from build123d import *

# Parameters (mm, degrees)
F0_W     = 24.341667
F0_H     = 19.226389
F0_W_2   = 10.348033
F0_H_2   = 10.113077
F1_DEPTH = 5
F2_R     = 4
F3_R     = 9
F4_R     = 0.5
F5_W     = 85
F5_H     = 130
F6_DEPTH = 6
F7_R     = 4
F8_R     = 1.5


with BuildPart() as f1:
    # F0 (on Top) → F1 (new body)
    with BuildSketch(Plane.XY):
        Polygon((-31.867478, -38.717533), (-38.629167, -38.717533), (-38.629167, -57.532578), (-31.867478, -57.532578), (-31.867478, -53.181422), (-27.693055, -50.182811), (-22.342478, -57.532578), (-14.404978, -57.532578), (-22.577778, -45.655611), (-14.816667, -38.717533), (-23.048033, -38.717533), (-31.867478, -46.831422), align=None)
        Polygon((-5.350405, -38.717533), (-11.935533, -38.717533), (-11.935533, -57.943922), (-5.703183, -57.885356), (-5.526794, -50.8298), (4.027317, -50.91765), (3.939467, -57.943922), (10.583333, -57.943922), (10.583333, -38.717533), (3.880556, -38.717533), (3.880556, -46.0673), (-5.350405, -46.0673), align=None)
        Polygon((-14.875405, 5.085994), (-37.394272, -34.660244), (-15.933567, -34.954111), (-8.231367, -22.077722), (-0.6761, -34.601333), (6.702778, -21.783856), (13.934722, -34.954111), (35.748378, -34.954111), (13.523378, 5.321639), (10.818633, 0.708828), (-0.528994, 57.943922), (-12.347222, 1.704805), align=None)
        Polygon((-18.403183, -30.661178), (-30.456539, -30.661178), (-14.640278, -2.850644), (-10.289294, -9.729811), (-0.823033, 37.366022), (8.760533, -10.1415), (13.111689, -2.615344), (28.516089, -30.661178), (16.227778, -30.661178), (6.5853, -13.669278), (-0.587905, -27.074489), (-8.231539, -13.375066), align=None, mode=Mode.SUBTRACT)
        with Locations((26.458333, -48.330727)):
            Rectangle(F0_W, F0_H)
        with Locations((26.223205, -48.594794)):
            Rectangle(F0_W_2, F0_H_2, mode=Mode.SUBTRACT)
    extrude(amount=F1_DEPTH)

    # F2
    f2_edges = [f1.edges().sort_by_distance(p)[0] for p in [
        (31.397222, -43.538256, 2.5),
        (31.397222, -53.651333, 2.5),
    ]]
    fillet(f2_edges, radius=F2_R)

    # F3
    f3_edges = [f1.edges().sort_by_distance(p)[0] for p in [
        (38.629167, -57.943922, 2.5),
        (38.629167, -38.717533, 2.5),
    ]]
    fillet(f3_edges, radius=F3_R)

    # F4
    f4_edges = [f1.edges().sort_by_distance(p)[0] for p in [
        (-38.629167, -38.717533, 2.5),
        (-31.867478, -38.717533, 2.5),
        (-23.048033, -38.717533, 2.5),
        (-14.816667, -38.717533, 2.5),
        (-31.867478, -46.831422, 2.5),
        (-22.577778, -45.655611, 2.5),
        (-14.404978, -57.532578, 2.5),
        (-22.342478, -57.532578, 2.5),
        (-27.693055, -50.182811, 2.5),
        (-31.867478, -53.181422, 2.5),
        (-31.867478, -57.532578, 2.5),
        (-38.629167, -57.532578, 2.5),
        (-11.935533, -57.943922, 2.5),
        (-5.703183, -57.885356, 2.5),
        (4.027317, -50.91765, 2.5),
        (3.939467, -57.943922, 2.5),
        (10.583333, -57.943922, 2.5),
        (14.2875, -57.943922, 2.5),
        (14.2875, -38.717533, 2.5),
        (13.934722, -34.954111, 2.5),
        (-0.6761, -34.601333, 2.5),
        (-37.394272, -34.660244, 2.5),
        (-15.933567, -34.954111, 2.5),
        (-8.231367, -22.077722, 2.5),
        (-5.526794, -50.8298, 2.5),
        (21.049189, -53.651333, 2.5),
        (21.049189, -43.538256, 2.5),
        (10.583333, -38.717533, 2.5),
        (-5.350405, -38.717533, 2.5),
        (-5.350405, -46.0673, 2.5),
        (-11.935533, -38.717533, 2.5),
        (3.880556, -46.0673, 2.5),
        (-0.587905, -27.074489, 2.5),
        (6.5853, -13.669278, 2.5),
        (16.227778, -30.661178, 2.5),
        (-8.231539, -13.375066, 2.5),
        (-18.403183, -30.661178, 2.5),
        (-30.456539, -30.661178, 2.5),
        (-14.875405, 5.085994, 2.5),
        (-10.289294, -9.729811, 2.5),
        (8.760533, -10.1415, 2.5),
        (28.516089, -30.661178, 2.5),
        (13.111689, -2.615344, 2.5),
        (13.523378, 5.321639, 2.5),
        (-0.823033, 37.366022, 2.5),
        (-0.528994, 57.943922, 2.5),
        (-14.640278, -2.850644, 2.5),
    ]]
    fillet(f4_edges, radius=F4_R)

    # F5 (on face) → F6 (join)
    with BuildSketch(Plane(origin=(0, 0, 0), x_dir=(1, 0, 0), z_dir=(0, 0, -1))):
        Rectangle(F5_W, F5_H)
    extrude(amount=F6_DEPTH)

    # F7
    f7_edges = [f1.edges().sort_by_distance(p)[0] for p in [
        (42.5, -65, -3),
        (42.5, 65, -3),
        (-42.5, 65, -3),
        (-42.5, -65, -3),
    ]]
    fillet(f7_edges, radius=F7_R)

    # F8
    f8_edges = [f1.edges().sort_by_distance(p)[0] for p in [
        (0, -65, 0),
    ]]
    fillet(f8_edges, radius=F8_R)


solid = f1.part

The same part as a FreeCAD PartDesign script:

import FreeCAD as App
import Part
import Sketcher
from FreeCAD import Vector
Q = App.Units.Quantity


def edges_at(feature, points):
    """Names of the edges that pass closest to the given points."""
    edges = feature.Shape.Edges
    near = lambda p: min(range(len(edges)), key=lambda i: edges[i].distToShape(Part.Vertex(*p))[0])
    return sorted({f"Edge{near(p) + 1}" for p in points})


def add_polygon(sketch, points):
    """Adds a closed chain of lines whose ends are joined by coincident constraints."""
    first, n = sketch.GeometryCount, len(points)
    for a, b in zip(points, points[1:] + points[:1]):
        sketch.addGeometry(Part.LineSegment(App.Vector(*a, 0), App.Vector(*b, 0)), False)
    for i in range(n):
        sketch.addConstraint(Sketcher.Constraint("Coincident", first + i, 2, first + (i + 1) % n, 1))

doc = App.newDocument("Part")
body = doc.addObject("PartDesign::Body", "Body")
body.AllowCompound = True

sketch1 = doc.addObject("Sketcher::SketchObject", "Sketch")
body.addObject(sketch1)
sketch1.AttachmentSupport = (doc.XY_Plane, [""])
sketch1.MapMode = "FlatFace"
add_polygon(sketch1, [(-31.9, -38.7), (-38.6, -38.7), (-38.6, -57.5), (-31.9, -57.5), (-31.9, -53.2), (-27.7, -50.2), (-22.3, -57.5), (-14.4, -57.5), (-22.6, -45.7), (-14.8, -38.7), (-23, -38.7), (-31.9, -46.8)])
add_polygon(sketch1, [(-5.4, -38.7), (-11.9, -38.7), (-11.9, -57.9), (-5.7, -57.9), (-5.5, -50.8), (4, -50.9), (3.9, -57.9), (10.6, -57.9), (10.6, -38.7), (3.9, -38.7), (3.9, -46.1), (-5.4, -46.1)])
add_polygon(sketch1, [(-14.9, 5.1), (-37.4, -34.7), (-15.9, -35), (-8.2, -22.1), (-0.7, -34.6), (6.7, -21.8), (13.9, -35), (35.7, -35), (13.5, 5.3), (10.8, 0.7), (-0.5, 57.9), (-12.3, 1.7)])
add_polygon(sketch1, [(-8.2, -13.4), (-18.4, -30.7), (-30.5, -30.7), (-14.6, -2.9), (-10.3, -9.7), (-0.8, 37.4), (8.8, -10.1), (13.1, -2.6), (28.5, -30.7), (16.2, -30.7), (6.6, -13.7), (-0.6, -27.1)])
add_polygon(sketch1, [(14.3, -38.7), (14.3, -57.9), (38.6, -57.9), (38.6, -38.7)])
add_polygon(sketch1, [(31.4, -53.7), (21, -53.7), (21, -43.5), (31.4, -43.5)])
sketch1.addConstraint([
    Sketcher.Constraint("Horizontal", 0),
    Sketcher.Constraint("Vertical", 1),
    Sketcher.Constraint("Horizontal", 2),
    Sketcher.Constraint("Vertical", 3),
    Sketcher.Constraint("Horizontal", 6),
    Sketcher.Constraint("Horizontal", 9),
    Sketcher.Constraint("Vertical", 11),
    Sketcher.Constraint("Horizontal", 12),
    Sketcher.Constraint("Vertical", 13),
    Sketcher.Constraint("Horizontal", 18),
    Sketcher.Constraint("Vertical", 19),
    Sketcher.Constraint("Horizontal", 20),
    Sketcher.Constraint("Vertical", 21),
    Sketcher.Constraint("Horizontal", 22),
    Sketcher.Constraint("Vertical", 23),
    Sketcher.Constraint("Horizontal", 30),
    Sketcher.Constraint("Horizontal", 37),
    Sketcher.Constraint("Horizontal", 44),
    Sketcher.Constraint("Vertical", 48),
    Sketcher.Constraint("Horizontal", 49),
    Sketcher.Constraint("Vertical", 50),
    Sketcher.Constraint("Horizontal", 51),
    Sketcher.Constraint("Horizontal", 52),
    Sketcher.Constraint("Vertical", 53),
    Sketcher.Constraint("Horizontal", 54),
    Sketcher.Constraint("Vertical", 55),
    Sketcher.Constraint("Symmetric", 0, 2, 50, 2, -2),
    Sketcher.Constraint("Horizontal", 2, 2, 5, 2),
    Sketcher.Constraint("Horizontal", 0, 2, 8, 2),
    Sketcher.Constraint("Horizontal", 11, 2, 12, 2),
    Sketcher.Constraint("Horizontal", 13, 2, 17, 2),
    Sketcher.Constraint("Horizontal", 12, 2, 19, 2),
    Sketcher.Constraint("Horizontal", 25, 2, 29, 2),
    Sketcher.Constraint("Horizontal", 37, 2, 43, 2),
    Sketcher.Constraint("Horizontal", 18, 2, 48, 2),
    Sketcher.Constraint("Vertical", 3, 2, 10, 2),
    Sketcher.Constraint("DistanceY", 3, 2, 10, 2, Q("6.35 mm")),
    Sketcher.Constraint("DistanceX", 26, 2, 32, 2, Q("19.05 mm")),
    Sketcher.Constraint("DistanceX", 34, 2, 28, 2, Q("19.05 mm")),
    Sketcher.Constraint("DistanceX", 6, 1, 6, 2, Q("7.9375 mm")),
    Sketcher.Constraint("DistanceX", 2, 2, 5, 2, Q("9.525 mm")),
    Sketcher.Constraint("DistanceX", 13, 2, 17, 2, Q("15.875 mm")),
    Sketcher.Constraint("DistanceX", 28, 2, 44, 2, Q("9.525 mm")),
    Sketcher.Constraint("Distance", 29, Q("15.0252 mm")),
    Sketcher.Constraint("DistanceX", 0, 2, 0, 1, Q("6.761689 mm")),
    Sketcher.Constraint("DistanceX", 22, 2, 22, 1, Q("9.230961 mm")),
    Sketcher.Constraint("DistanceX", 44, 2, 44, 1, Q("12.288311 mm")),
    Sketcher.Constraint("DistanceY", 11, 1, 11, 2, Q("8.113889 mm")),
    Sketcher.Constraint("DistanceY", 13, 2, 13, 1, Q("19.226389 mm")),
    Sketcher.Constraint("DistanceY", 15, 2, -1, 1, Q("50.8298 mm")),
    Sketcher.Constraint("DistanceY", 21, 2, -1, 1, Q("46.0673 mm")),
    Sketcher.Constraint("DistanceX", 27, 2, -1, 1, Q("0.6761 mm")),
    Sketcher.Constraint("DistanceY", 41, 2, -1, 1, Q("10.1415 mm")),
    Sketcher.Constraint("DistanceX", -1, 1, 45, 2, Q("6.5853 mm")),
    Sketcher.Constraint("DistanceX", -1, 1, 48, 2, Q("14.287499 mm")),
    Sketcher.Constraint("DistanceY", 4, 2, 7, 2, Q("4.5272 mm")),
    Sketcher.Constraint("DistanceX", 7, 2, 5, 2, Q("0.2353 mm")),
    Sketcher.Constraint("DistanceX", 9, 2, 12, 2, Q("11.1125 mm")),
    Sketcher.Constraint("DistanceX", 14, 2, 16, 2, Q("9.7305 mm")),
    Sketcher.Constraint("DistanceX", 25, 2, 8, 2, Q("1.1169 mm")),
    Sketcher.Constraint("DistanceY", 7, 2, 25, 2, Q("10.7015 mm")),
    Sketcher.Constraint("DistanceX", 25, 2, 26, 2, Q("7.7022 mm")),
    Sketcher.Constraint("DistanceY", 20, 2, 27, 2, Q("4.1162 mm")),
    Sketcher.Constraint("DistanceX", 28, 2, 30, 2, Q("29.0456 mm")),
    Sketcher.Constraint("DistanceX", 28, 2, 31, 2, Q("6.8206 mm")),
    Sketcher.Constraint("DistanceY", 40, 2, 33, 2, Q("20.5779 mm")),
    Sketcher.Constraint("DistanceX", 41, 2, 32, 2, Q("2.0581 mm")),
    Sketcher.Constraint("DistanceX", 23, 2, 46, 2, Q("4.7625 mm")),
    Sketcher.Constraint("DistanceY", 52, 2, 51, 2, Q("14.9338 mm")),
    Sketcher.Constraint("Distance", 5, Q("9.091081 mm")),
    Sketcher.Constraint("Distance", 15, Q("7.057761 mm")),
    Sketcher.Constraint("Distance", 17, Q("7.026821 mm")),
    Sketcher.Constraint("Distance", 28, Q("14.789711 mm")),
    Sketcher.Constraint("Distance", 31, Q("46.000942 mm")),
    Sketcher.Constraint("Distance", 33, Q("58.349161 mm")),
    Sketcher.Constraint("Distance", 34, Q("57.467459 mm")),
    Sketcher.Constraint("Distance", 36, Q("20.05672 mm")),
    Sketcher.Constraint("Distance", 42, Q("8.693422 mm")),
    Sketcher.Constraint("Distance", 43, Q("31.99788 mm")),
    Sketcher.Constraint("DistanceX", 9, 2, 9, 1, Q("8.231366 mm")),
    Sketcher.Constraint("DistanceX", 12, 2, 12, 1, Q("6.585128 mm")),
    Sketcher.Constraint("DistanceX", 18, 1, 18, 2, Q("6.643866 mm")),
    Sketcher.Constraint("DistanceX", 30, 1, 30, 2, Q("21.813656 mm")),
    Sketcher.Constraint("DistanceX", 37, 2, 37, 1, Q("12.053356 mm")),
    Sketcher.Constraint("DistanceX", 49, 1, 49, 2, Q("24.341667 mm")),
    Sketcher.Constraint("DistanceX", 52, 2, 52, 1, Q("10.348033 mm")),
    Sketcher.Constraint("DistanceY", 1, 2, 1, 1, Q("18.815045 mm")),
    Sketcher.Constraint("DistanceY", 21, 2, 21, 1, Q("7.349767 mm")),
    Sketcher.Constraint("DistanceY", 53, 1, 53, 2, Q("10.113077 mm")),
    Sketcher.Constraint("DistanceY", 4, 2, -1, 1, Q("50.182811 mm")),
    Sketcher.Constraint("DistanceY", 16, 2, -1, 1, Q("50.91765 mm")),
    Sketcher.Constraint("DistanceY", -1, 1, 32, 2, Q("0.708828 mm")),
    Sketcher.Constraint("DistanceX", 37, 2, -1, 1, Q("30.456539 mm")),
    Sketcher.Constraint("DistanceY", 39, 2, -1, 1, Q("9.729811 mm")),
    Sketcher.Constraint("DistanceX", -1, 1, 42, 2, Q("13.111689 mm")),
    Sketcher.Constraint("DistanceY", 46, 2, -1, 1, Q("27.074489 mm")),
    Sketcher.Constraint("DistanceX", 47, 2, -1, 1, Q("8.231539 mm")),
    Sketcher.Constraint("DistanceX", -1, 1, 52, 2, Q("21.049188 mm")),
    Sketcher.Constraint("DistanceX", 7, 2, 8, 2, Q("7.761111 mm")),
    Sketcher.Constraint("DistanceY", 14, 2, 6, 2, Q("0.352778 mm")),
    Sketcher.Constraint("DistanceY", 0, 2, 24, 2, Q("4.057289 mm")),
    Sketcher.Constraint("DistanceX", 24, 2, 9, 2, Q("14.346239 mm")),
    Sketcher.Constraint("DistanceY", 25, 2, 26, 2, Q("12.876389 mm")),
    Sketcher.Constraint("DistanceX", 33, 2, 31, 2, Q("14.052372 mm")),
    Sketcher.Constraint("DistanceY", 34, 2, 35, 2, Q("3.381189 mm")),
    Sketcher.Constraint("DistanceY", 38, 2, 34, 2, Q("4.555449 mm")),
    Sketcher.Constraint("DistanceX", 38, 2, 26, 2, Q("6.408911 mm")),
    Sketcher.Constraint("DistanceX", 34, 2, 39, 2, Q("2.057928 mm")),
    Sketcher.Constraint("DistanceX", 35, 2, 39, 2, Q("4.586111 mm")),
    Sketcher.Constraint("DistanceX", 40, 2, 33, 2, Q("0.294039 mm")),
    Sketcher.Constraint("DistanceY", 45, 2, 47, 2, Q("0.294212 mm")),
])
pad1 = doc.addObject("PartDesign::Pad", "Pad")
body.addObject(pad1)
pad1.Profile = sketch1
pad1.Length = 5
doc.recompute()

fillet = doc.addObject("PartDesign::Fillet", "Fillet")
body.addObject(fillet)
fillet.Base = (pad1, edges_at(pad1, [(31.397, -43.538, 2.5), (31.397, -53.651, 2.5)]))
fillet.Radius = 4
doc.recompute()

fillet2 = doc.addObject("PartDesign::Fillet", "Fillet001")
body.addObject(fillet2)
fillet2.Base = (fillet, edges_at(fillet, [(38.629, -57.944, 2.5), (38.629, -38.718, 2.5)]))
fillet2.Radius = 9
doc.recompute()

fillet3 = doc.addObject("PartDesign::Fillet", "Fillet002")
body.addObject(fillet3)
fillet3.Base = (fillet2, edges_at(fillet2, [
    (-38.629, -38.718, 2.5),
    (-31.867, -38.718, 2.5),
    (-23.048, -38.718, 2.5),
    (-14.817, -38.718, 2.5),
    (-31.867, -46.831, 2.5),
    (-22.578, -45.656, 2.5),
    (-14.405, -57.533, 2.5),
    (-22.342, -57.533, 2.5),
    (-27.693, -50.183, 2.5),
    (-31.867, -53.181, 2.5),
    (-31.867, -57.533, 2.5),
    (-38.629, -57.533, 2.5),
    (-11.936, -57.944, 2.5),
    (-5.703, -57.885, 2.5),
    (4.027, -50.918, 2.5),
    (3.939, -57.944, 2.5),
    (10.583, -57.944, 2.5),
    (14.287, -57.944, 2.5),
    (14.287, -38.718, 2.5),
    (13.935, -34.954, 2.5),
    (-0.676, -34.601, 2.5),
    (-37.394, -34.66, 2.5),
    (-15.934, -34.954, 2.5),
    (-8.231, -22.078, 2.5),
    (-5.527, -50.83, 2.5),
    (21.049, -53.651, 2.5),
    (21.049, -43.538, 2.5),
    (10.583, -38.718, 2.5),
    (-5.35, -38.718, 2.5),
    (-5.35, -46.067, 2.5),
    (-11.936, -38.718, 2.5),
    (3.881, -46.067, 2.5),
    (-0.588, -27.074, 2.5),
    (6.585, -13.669, 2.5),
    (16.228, -30.661, 2.5),
    (-8.232, -13.375, 2.5),
    (-18.403, -30.661, 2.5),
    (-30.457, -30.661, 2.5),
    (-14.875, 5.086, 2.5),
    (-10.289, -9.73, 2.5),
    (8.761, -10.142, 2.5),
    (28.516, -30.661, 2.5),
    (13.112, -2.615, 2.5),
    (13.523, 5.322, 2.5),
    (-0.823, 37.366, 2.5),
    (-0.529, 57.944, 2.5),
    (-14.64, -2.851, 2.5),
]))
fillet3.Radius = 0.5

sketch2 = doc.addObject("Sketcher::SketchObject", "Sketch001")
body.addObject(sketch2)
sketch2.AttachmentSupport = (doc.XY_Plane, [""])
sketch2.MapMode = "FlatFace"
add_polygon(sketch2, [(-42, -65), (-42, 65), (42, 65), (42, -65)])
sketch2.addConstraint([
    Sketcher.Constraint("Vertical", 0),
    Sketcher.Constraint("Horizontal", 1),
    Sketcher.Constraint("Vertical", 2),
    Sketcher.Constraint("Horizontal", 3),
    Sketcher.Constraint("Symmetric", 0, 2, 2, 2, -1, 1),
    Sketcher.Constraint("DistanceX", 1, 1, 1, 2, Q("85 mm")),
    Sketcher.Constraint("DistanceY", 0, 1, 0, 2, Q("130 mm")),
])
pad2 = doc.addObject("PartDesign::Pad", "Pad001")
body.addObject(pad2)
pad2.Profile = sketch2
pad2.Length = 6
pad2.Reversed = True
doc.recompute()

fillet4 = doc.addObject("PartDesign::Fillet", "Fillet003")
body.addObject(fillet4)
fillet4.Base = (pad2, edges_at(pad2, [
    (42.5, -65, -3),
    (42.5, 65, -3),
    (-42.5, 65, -3),
    (-42.5, -65, -3),
]))
fillet4.Radius = 4
doc.recompute()

fillet5 = doc.addObject("PartDesign::Fillet", "Fillet004")
body.addObject(fillet5)
fillet5.Base = (fillet4, edges_at(fillet4, [(0, -65, 0)]))
fillet5.Radius = 1.5

doc.recompute()
